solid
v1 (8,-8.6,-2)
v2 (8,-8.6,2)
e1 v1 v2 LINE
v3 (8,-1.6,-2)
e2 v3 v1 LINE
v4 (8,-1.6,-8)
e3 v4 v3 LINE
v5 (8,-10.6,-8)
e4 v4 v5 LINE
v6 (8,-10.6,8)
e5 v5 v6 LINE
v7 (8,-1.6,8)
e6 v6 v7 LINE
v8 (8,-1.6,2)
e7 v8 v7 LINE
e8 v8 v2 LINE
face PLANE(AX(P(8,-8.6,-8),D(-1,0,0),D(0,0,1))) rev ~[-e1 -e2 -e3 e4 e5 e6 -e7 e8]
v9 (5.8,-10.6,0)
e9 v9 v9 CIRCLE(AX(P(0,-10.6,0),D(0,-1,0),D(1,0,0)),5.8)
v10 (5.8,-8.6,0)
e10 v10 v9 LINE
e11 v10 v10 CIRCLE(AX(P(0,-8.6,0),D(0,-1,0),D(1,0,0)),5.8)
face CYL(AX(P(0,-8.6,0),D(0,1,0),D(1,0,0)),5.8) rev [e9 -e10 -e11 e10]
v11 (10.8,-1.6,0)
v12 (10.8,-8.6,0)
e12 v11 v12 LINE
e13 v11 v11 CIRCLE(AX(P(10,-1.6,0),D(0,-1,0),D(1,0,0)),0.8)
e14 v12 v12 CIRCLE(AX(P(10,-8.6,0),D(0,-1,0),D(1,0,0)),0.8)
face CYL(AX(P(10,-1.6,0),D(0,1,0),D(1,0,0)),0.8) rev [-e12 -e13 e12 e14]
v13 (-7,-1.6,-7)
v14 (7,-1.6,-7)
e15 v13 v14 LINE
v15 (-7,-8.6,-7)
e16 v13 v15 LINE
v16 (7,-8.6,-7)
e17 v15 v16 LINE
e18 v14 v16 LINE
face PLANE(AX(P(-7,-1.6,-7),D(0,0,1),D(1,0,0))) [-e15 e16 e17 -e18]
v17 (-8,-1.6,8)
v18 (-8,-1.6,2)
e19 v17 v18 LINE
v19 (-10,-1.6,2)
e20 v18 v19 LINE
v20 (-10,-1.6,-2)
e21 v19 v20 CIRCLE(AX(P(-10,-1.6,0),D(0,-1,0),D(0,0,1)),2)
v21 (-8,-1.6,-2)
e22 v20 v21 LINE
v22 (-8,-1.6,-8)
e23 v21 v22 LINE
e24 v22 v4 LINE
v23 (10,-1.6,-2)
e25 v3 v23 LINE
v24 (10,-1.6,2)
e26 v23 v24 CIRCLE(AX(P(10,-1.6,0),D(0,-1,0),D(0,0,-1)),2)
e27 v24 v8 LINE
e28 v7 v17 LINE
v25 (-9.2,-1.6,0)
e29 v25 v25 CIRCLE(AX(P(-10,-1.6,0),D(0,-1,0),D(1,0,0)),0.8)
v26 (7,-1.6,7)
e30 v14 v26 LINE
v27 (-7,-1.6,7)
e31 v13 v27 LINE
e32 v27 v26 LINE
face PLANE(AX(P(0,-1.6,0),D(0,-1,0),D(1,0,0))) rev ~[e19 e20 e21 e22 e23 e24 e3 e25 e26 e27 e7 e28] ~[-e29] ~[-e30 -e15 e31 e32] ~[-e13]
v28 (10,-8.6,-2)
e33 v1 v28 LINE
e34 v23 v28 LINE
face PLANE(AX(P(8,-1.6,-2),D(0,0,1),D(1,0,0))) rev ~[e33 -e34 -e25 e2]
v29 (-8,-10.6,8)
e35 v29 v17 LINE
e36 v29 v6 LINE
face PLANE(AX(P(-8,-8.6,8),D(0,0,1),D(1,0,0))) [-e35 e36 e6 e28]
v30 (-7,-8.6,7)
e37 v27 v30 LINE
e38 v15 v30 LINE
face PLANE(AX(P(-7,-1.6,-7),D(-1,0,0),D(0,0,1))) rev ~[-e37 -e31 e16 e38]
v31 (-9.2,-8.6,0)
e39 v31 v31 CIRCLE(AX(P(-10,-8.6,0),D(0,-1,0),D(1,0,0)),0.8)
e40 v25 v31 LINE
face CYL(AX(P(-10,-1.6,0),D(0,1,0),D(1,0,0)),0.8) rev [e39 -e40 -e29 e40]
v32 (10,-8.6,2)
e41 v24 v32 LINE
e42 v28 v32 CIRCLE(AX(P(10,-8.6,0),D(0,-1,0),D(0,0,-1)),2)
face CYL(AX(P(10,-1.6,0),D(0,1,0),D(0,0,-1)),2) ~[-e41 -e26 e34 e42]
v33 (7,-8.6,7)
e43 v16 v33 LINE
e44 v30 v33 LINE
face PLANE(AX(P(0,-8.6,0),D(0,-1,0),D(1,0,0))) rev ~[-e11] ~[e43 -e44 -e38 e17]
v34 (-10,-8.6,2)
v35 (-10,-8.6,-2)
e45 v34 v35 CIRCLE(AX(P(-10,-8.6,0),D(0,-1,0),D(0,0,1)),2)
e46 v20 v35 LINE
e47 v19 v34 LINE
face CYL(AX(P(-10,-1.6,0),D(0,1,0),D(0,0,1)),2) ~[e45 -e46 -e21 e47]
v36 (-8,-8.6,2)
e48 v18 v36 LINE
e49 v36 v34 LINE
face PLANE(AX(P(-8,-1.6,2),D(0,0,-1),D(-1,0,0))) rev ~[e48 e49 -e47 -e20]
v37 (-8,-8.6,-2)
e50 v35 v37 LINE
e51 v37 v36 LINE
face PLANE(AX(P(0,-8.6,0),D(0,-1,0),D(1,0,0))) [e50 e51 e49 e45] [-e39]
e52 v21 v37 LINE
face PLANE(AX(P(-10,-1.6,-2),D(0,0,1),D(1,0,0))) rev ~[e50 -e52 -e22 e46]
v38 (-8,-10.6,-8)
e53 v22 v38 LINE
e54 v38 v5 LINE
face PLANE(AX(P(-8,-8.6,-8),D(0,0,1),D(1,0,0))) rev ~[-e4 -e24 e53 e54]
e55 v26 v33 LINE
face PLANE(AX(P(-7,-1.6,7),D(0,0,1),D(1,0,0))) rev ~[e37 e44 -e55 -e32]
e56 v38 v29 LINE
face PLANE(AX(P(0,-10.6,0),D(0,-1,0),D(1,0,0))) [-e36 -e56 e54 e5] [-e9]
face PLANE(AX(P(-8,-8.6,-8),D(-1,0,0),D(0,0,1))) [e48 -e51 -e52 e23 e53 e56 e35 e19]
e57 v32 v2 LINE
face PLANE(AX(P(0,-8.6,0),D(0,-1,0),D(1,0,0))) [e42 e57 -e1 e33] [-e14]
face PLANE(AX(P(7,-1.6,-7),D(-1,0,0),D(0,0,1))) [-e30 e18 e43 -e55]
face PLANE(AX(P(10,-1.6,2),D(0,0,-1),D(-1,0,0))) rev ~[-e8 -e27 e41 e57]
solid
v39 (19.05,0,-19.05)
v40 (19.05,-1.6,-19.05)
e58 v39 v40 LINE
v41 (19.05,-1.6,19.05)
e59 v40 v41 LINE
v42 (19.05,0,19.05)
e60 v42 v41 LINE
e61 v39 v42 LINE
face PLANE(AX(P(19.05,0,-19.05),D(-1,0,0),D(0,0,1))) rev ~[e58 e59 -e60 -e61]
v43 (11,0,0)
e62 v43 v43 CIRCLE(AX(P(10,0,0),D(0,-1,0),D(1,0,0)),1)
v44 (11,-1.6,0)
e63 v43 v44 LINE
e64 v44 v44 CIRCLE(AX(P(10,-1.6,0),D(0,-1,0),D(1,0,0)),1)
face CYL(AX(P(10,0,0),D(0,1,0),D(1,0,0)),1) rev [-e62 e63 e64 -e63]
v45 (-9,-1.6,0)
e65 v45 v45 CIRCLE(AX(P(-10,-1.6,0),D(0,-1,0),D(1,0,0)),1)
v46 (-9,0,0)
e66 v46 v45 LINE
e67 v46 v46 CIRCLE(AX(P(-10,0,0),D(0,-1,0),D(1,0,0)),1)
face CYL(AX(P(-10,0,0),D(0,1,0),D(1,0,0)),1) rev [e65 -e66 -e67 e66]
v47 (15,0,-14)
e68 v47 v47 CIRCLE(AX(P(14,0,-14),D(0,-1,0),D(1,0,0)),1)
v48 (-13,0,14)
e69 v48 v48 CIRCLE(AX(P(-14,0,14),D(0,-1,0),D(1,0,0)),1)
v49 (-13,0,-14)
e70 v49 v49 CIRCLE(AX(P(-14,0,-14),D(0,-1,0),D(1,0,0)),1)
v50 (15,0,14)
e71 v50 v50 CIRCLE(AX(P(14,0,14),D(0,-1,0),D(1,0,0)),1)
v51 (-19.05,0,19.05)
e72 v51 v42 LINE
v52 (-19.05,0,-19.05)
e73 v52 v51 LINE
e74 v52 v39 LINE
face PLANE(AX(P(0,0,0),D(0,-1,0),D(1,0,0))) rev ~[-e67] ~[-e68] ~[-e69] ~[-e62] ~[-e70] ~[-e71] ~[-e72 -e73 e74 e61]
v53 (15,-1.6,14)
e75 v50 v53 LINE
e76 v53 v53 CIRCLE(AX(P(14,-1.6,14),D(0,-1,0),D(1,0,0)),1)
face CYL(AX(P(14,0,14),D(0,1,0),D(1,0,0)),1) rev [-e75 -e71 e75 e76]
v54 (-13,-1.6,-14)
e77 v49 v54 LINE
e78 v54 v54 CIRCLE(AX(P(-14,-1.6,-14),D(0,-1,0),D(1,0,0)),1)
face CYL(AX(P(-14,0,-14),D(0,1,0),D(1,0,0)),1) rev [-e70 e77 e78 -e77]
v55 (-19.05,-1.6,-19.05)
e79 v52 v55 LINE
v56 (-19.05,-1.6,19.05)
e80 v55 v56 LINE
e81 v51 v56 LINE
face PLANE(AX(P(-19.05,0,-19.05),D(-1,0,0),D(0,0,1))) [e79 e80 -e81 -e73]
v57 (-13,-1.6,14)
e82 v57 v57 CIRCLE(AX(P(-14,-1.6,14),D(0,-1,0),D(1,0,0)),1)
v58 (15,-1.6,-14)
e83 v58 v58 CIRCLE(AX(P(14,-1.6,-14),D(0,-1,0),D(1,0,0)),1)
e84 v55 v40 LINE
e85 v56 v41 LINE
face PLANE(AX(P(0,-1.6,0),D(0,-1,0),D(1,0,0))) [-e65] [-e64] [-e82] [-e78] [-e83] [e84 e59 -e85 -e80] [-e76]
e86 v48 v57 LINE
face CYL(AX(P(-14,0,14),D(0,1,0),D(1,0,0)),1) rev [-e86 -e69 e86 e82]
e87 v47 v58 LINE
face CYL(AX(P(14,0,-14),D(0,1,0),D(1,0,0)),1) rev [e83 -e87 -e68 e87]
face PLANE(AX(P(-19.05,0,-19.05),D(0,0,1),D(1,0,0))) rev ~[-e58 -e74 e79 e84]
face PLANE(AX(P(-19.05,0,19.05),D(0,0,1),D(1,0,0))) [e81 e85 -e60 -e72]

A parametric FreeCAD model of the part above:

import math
import FreeCAD as App
import Part
import Sketcher
from FreeCAD import Vector
Q = App.Units.Quantity


def add_polygon(sketch, points):
    """Adds a closed chain of lines whose ends are joined by coincident constraints."""
    first, n = sketch.GeometryCount, len(points)
    for a, b in zip(points, points[1:] + points[:1]):
        sketch.addGeometry(Part.LineSegment(App.Vector(*a, 0), App.Vector(*b, 0)), False)
    for i in range(n):
        sketch.addConstraint(Sketcher.Constraint("Coincident", first + i, 2, first + (i + 1) % n, 1))

doc = App.newDocument("Part")
body = doc.addObject("PartDesign::Body", "Body")

sketch1 = body.newObject("Sketcher::SketchObject", "Sketch")
sketch1.AttachmentSupport = (doc.getObject("XZ_Plane"), [""])
sketch1.MapMode = "FlatFace"
add_polygon(sketch1, [(-19.1, 19.1), (-19.1, -19.1), (19.1, -19.1), (19.1, 19.1)])
sketch1.addGeometry(Part.Circle(Vector(-14, -14, 0), Vector(0, 0, 1), 1), False)
sketch1.addGeometry(Part.Circle(Vector(14, -14, 0), Vector(0, 0, 1), 1), False)
sketch1.addGeometry(Part.Circle(Vector(-10, 0, 0), Vector(0, 0, 1), 1), False)
sketch1.addGeometry(Part.Circle(Vector(-14, 14, 0), Vector(0, 0, 1), 1), False)
sketch1.addGeometry(Part.Circle(Vector(10, 0, 0), Vector(0, 0, 1), 1), False)
sketch1.addGeometry(Part.Circle(Vector(14, 14, 0), Vector(0, 0, 1), 1), False)
sketch1.addConstraint([
    Sketcher.Constraint("Vertical", 0),
    Sketcher.Constraint("Horizontal", 1),
    Sketcher.Constraint("Vertical", 2),
    Sketcher.Constraint("Horizontal", 3),
    Sketcher.Constraint("Equal", 4, 5),
    Sketcher.Constraint("Equal", 5, 6),
    Sketcher.Constraint("Equal", 6, 7),
    Sketcher.Constraint("Equal", 7, 8),
    Sketcher.Constraint("Equal", 8, 9),
    Sketcher.Constraint("Symmetric", 5, 3, 7, 3, -1, 1),
    Sketcher.Constraint("Symmetric", 6, 3, 8, 3, -1, 1),
    Sketcher.Constraint("Symmetric", 4, 3, 9, 3, -1, 1),
    Sketcher.Constraint("Symmetric", 0, 2, 2, 2, -1, 1),
    Sketcher.Constraint("Symmetric", 4, 3, 5, 3, -2),
    Sketcher.Constraint("PointOnObject", 6, 3, -1),
    Sketcher.Constraint("Equal", 3, 0),
    Sketcher.Constraint("Diameter", 4, Q("2 mm")),
    Sketcher.Constraint("DistanceX", 1, 1, 1, 2, Q("38.1 mm")),
    Sketcher.Constraint("DistanceX", 4, 3, -1, 1, Q("14 mm")),
    Sketcher.Constraint("DistanceY", 4, 3, -1, 1, Q("14 mm")),
    Sketcher.Constraint("DistanceX", 6, 3, -1, 1, Q("10 mm")),
])
pad1 = body.newObject("PartDesign::Pad", "Pad")
pad1.Profile = sketch1
pad1.Length = 1.6
body2 = doc.addObject("PartDesign::Body", "Body001")

sketch2 = body2.newObject("Sketcher::SketchObject", "Sketch001")
sketch2.AttachmentSupport = (doc.getObject("XZ_Plane001"), [""])
sketch2.MapMode = "FlatFace"
sketch2.AttachmentOffset = App.Placement(Vector(0, 0, 1.6), App.Rotation())
sketch2.addGeometry(Part.LineSegment(Vector(-8, -8, 0), Vector(8, -8, 0)), False)
sketch2.addGeometry(Part.LineSegment(Vector(8, -8, 0), Vector(8, -2, 0)), False)
sketch2.addGeometry(Part.LineSegment(Vector(8, -2, 0), Vector(10, -2, 0)), False)
sketch2.addGeometry(Part.ArcOfCircle(Part.Circle(Vector(10, 0, 0), Vector(0, 0, 1), 2), math.radians(-90), math.radians(90)), False)
sketch2.addGeometry(Part.LineSegment(Vector(10, 2, 0), Vector(8, 2, 0)), False)
sketch2.addGeometry(Part.LineSegment(Vector(8, 2, 0), Vector(8, 8, 0)), False)
sketch2.addGeometry(Part.LineSegment(Vector(8, 8, 0), Vector(-8, 8, 0)), False)
sketch2.addGeometry(Part.LineSegment(Vector(-8, 8, 0), Vector(-8, 2, 0)), False)
sketch2.addGeometry(Part.LineSegment(Vector(-8, 2, 0), Vector(-10, 2, 0)), False)
sketch2.addGeometry(Part.ArcOfCircle(Part.Circle(Vector(-10, 0, 0), Vector(0, 0, 1), 2), math.radians(90), math.radians(270)), False)
sketch2.addGeometry(Part.LineSegment(Vector(-10, -2, 0), Vector(-8, -2, 0)), False)
sketch2.addGeometry(Part.LineSegment(Vector(-8, -2, 0), Vector(-8, -8, 0)), False)
sketch2.addGeometry(Part.Circle(Vector(-10, 0, 0), Vector(0, 0, 1), 0.8), False)
add_polygon(sketch2, [(7, -7), (-7, -7), (-7, 7), (7, 7)])
sketch2.addGeometry(Part.Circle(Vector(10, 0, 0), Vector(0, 0, 1), 0.8), False)
sketch2.addConstraint([
    Sketcher.Constraint("Coincident", 0, 2, 1, 1),
    Sketcher.Constraint("Coincident", 1, 2, 2, 1),
    Sketcher.Constraint("Tangent", 2, 2, 3, 1),
    Sketcher.Constraint("Tangent", 3, 2, 4, 1),
    Sketcher.Constraint("Coincident", 4, 2, 5, 1),
    Sketcher.Constraint("Coincident", 5, 2, 6, 1),
    Sketcher.Constraint("Coincident", 6, 2, 7, 1),
    Sketcher.Constraint("Coincident", 7, 2, 8, 1),
    Sketcher.Constraint("Tangent", 8, 2, 9, 1),
    Sketcher.Constraint("Tangent", 9, 2, 10, 1),
    Sketcher.Constraint("Coincident", 10, 2, 11, 1),
    Sketcher.Constraint("Coincident", 11, 2, 0, 1),
    Sketcher.Constraint("Horizontal", 0),
    Sketcher.Constraint("Vertical", 1),
    Sketcher.Constraint("Horizontal", 2),
    Sketcher.Constraint("Horizontal", 4),
    Sketcher.Constraint("Vertical", 5),
    Sketcher.Constraint("Horizontal", 6),
    Sketcher.Constraint("Vertical", 7),
    Sketcher.Constraint("Horizontal", 8),
    Sketcher.Constraint("Horizontal", 10),
    Sketcher.Constraint("Vertical", 11),
    Sketcher.Constraint("Horizontal", 13),
    Sketcher.Constraint("Vertical", 14),
    Sketcher.Constraint("Horizontal", 15),
    Sketcher.Constraint("Vertical", 16),
    Sketcher.Constraint("Coincident", 12, 3, 9, 3),
    Sketcher.Constraint("Coincident", 17, 3, 3, 3),
    Sketcher.Constraint("Equal", 3, 9),
    Sketcher.Constraint("Equal", 12, 17),
    Sketcher.Constraint("Symmetric", 3, 3, 9, 3, -1, 1),
    Sketcher.Constraint("Symmetric", 0, 2, 6, 2, -1, 1),
    Sketcher.Constraint("Symmetric", 13, 2, 15, 2, -1, 1),
    Sketcher.Constraint("Symmetric", 4, 2, 7, 2, -2),
    Sketcher.Constraint("Vertical", 7, 2, 10, 2),
    Sketcher.Constraint("Equal", 15, 14),
    Sketcher.Constraint("Radius", 3, Q("2 mm")),
    Sketcher.Constraint("Diameter", 12, Q("1.6 mm")),
    Sketcher.Constraint("DistanceX", 0, 1, 0, 2, Q("16 mm")),
    Sketcher.Constraint("DistanceX", 2, 1, 2, 2, Q("2 mm")),
    Sketcher.Constraint("DistanceX", 13, 2, 13, 1, Q("14 mm")),
    Sketcher.Constraint("DistanceY", 1, 1, 1, 2, Q("6 mm")),
])
pad2 = body2.newObject("PartDesign::Pad", "Pad001")
pad2.Profile = sketch2
pad2.Length = 7

sketch3 = body2.newObject("Sketcher::SketchObject", "Sketch002")
sketch3.AttachmentSupport = (doc.getObject("XZ_Plane001"), [""])
sketch3.MapMode = "FlatFace"
sketch3.AttachmentOffset = App.Placement(Vector(0, 0, 8.6), App.Rotation())
add_polygon(sketch3, [(-8, 8), (-8, -8), (8, -8), (8, 8)])
sketch3.addGeometry(Part.Circle(Vector(0, 0, 0), Vector(0, 0, 1), 6), False)
sketch3.addConstraint([
    Sketcher.Constraint("Vertical", 0),
    Sketcher.Constraint("Horizontal", 1),
    Sketcher.Constraint("Vertical", 2),
    Sketcher.Constraint("Horizontal", 3),
    Sketcher.Constraint("Coincident", 4, 3, -1, 1),
    Sketcher.Constraint("Symmetric", 0, 2, 2, 2, -1, 1),
    Sketcher.Constraint("Equal", 3, 0),
    Sketcher.Constraint("Diameter", 4, Q("11.6 mm")),
    Sketcher.Constraint("DistanceX", 1, 1, 1, 2, Q("16 mm")),
])
pad3 = body2.newObject("PartDesign::Pad", "Pad002")
pad3.Profile = sketch3
pad3.Length = 2

doc.recompute()
